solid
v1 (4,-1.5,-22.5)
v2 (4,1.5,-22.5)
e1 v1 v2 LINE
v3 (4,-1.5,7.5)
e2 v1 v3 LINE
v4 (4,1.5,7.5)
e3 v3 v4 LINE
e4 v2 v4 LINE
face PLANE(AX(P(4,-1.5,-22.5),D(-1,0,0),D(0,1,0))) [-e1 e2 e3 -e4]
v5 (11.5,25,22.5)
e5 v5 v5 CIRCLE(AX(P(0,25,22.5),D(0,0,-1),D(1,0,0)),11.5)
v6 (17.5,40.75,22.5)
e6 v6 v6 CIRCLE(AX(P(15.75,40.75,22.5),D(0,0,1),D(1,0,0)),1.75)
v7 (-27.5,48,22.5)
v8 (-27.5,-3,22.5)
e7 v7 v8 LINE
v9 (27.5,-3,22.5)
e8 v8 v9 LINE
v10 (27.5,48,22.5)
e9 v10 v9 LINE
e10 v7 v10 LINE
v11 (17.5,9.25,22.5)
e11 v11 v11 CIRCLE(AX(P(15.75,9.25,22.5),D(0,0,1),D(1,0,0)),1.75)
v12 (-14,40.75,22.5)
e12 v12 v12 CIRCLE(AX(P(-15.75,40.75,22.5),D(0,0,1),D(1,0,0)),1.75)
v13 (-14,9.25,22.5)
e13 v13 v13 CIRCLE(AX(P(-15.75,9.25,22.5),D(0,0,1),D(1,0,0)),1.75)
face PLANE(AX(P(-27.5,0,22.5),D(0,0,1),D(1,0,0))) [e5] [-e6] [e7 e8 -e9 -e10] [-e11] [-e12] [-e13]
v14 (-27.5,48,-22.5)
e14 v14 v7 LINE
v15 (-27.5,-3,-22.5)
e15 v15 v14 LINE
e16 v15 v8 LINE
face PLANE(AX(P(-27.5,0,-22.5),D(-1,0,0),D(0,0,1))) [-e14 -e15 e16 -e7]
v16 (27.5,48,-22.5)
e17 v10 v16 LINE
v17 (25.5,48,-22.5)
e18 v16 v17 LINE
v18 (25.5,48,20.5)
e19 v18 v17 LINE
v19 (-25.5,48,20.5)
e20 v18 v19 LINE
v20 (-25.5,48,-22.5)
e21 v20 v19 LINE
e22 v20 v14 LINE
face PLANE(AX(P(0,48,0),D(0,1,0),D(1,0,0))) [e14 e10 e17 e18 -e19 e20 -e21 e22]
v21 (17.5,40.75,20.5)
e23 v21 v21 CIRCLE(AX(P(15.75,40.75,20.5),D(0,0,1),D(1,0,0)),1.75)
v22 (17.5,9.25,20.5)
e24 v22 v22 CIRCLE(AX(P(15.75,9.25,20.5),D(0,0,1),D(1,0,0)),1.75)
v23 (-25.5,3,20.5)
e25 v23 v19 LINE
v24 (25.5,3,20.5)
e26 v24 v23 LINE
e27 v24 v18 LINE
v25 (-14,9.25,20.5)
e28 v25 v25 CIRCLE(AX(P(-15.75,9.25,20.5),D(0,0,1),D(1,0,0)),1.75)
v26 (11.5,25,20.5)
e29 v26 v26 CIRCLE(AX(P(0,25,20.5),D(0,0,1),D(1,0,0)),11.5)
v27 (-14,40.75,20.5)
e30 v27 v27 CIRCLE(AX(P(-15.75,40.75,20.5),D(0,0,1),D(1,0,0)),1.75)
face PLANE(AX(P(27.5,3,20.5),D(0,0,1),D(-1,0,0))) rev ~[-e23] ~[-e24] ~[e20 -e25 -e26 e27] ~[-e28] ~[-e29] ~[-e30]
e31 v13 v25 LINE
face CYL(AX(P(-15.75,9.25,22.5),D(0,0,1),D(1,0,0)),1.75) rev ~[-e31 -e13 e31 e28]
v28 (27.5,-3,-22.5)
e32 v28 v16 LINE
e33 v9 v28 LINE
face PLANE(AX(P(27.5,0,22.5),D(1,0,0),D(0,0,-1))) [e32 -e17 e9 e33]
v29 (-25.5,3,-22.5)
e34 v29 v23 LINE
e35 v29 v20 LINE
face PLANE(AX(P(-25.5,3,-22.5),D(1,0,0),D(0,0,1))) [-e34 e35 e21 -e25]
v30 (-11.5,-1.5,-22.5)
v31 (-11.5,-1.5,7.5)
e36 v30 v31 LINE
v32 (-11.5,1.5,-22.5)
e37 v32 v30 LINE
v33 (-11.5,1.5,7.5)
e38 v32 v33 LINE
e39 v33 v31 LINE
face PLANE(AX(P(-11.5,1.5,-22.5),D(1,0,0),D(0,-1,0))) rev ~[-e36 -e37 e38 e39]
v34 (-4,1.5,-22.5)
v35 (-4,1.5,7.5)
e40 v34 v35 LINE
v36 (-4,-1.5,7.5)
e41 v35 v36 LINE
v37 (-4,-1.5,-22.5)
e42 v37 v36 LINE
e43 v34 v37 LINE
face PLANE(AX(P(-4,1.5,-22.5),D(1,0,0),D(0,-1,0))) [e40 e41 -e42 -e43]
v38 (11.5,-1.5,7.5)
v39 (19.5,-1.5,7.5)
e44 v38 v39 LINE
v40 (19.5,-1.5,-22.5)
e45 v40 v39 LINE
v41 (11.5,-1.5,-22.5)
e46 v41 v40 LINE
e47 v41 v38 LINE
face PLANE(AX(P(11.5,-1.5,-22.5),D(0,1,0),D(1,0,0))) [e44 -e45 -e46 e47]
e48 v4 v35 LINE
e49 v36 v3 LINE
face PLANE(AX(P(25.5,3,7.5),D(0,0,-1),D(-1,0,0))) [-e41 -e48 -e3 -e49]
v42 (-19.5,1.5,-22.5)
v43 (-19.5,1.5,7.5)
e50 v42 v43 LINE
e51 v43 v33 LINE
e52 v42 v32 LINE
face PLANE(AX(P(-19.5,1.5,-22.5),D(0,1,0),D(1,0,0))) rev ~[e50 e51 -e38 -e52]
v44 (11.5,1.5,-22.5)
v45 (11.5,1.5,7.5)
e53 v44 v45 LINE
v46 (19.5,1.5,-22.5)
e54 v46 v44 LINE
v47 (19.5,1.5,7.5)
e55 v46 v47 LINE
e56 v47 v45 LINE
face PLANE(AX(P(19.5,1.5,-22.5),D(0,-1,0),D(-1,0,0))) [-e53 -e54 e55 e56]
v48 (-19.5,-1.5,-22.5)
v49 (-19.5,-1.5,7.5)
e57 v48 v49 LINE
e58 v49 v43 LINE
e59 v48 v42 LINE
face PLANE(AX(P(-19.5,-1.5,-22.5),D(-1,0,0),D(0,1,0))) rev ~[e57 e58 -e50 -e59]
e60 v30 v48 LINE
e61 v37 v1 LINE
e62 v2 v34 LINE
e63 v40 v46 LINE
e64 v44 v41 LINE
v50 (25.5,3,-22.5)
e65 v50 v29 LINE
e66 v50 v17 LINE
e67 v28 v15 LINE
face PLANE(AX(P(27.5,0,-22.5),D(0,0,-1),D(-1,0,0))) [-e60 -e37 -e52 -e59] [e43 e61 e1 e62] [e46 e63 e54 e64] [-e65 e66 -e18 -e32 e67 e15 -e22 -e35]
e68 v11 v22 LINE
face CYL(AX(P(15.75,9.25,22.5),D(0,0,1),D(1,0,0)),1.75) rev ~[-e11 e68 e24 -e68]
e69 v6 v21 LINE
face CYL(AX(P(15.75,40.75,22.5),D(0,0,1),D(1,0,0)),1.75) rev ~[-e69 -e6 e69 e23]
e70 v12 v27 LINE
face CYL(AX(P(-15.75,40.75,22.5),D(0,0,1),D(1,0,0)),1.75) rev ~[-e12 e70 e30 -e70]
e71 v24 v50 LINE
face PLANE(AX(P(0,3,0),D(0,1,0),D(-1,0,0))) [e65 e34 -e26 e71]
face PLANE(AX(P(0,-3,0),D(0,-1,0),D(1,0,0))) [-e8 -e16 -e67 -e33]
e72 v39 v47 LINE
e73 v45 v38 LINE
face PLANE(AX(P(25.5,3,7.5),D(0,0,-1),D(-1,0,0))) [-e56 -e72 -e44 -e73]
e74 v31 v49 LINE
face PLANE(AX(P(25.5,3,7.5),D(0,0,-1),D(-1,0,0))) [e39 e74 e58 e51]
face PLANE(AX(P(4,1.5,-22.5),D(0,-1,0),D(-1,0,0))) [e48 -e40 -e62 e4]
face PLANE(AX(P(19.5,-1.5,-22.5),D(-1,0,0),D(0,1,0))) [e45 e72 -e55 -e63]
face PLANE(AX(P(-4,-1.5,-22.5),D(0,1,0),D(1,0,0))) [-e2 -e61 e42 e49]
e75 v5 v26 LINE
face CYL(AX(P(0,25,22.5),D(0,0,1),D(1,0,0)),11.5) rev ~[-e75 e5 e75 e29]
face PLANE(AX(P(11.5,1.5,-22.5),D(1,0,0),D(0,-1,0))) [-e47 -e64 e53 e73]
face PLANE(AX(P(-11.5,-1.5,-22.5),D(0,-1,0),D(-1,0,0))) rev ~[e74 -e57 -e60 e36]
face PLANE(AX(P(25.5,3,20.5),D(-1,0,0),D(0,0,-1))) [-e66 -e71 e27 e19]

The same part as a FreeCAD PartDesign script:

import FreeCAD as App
import Part
import Sketcher

V = App.Vector
Q = App.Units.Quantity


def add_polygon(sketch, points):
    """Adds a closed chain of lines whose ends are joined by coincident constraints."""
    first, n = sketch.GeometryCount, len(points)
    for a, b in zip(points, points[1:] + points[:1]):
        sketch.addGeometry(Part.LineSegment(App.Vector(*a, 0), App.Vector(*b, 0)), False)
    for i in range(n):
        sketch.addConstraint(Sketcher.Constraint("Coincident", first + i, 2, first + (i + 1) % n, 1))

doc = App.newDocument("Part")
body = doc.addObject("PartDesign::Body", "Body")

# Sketch on XZ plane
sketch1 = body.newObject("Sketcher::SketchObject", "Sketch")
sketch1.AttachmentSupport = (doc.getObject("XZ_Plane"), [""])
sketch1.MapMode = "FlatFace"
add_polygon(sketch1, [(28, 22), (28, -22), (-28, -22), (-28, 22)])  # lines 0-3
sketch1.addConstraint([
    Sketcher.Constraint("Vertical", 0),
    Sketcher.Constraint("Horizontal", 1),
    Sketcher.Constraint("Vertical", 2),
    Sketcher.Constraint("Horizontal", 3),
    Sketcher.Constraint("Symmetric", 0, 2, 2, 2, -1, 1),
    Sketcher.Constraint("DistanceX", 1, 2, 1, 1, Q("55 mm")),
    Sketcher.Constraint("DistanceY", 0, 2, 0, 1, Q("45 mm")),
])
pad1 = body.newObject("PartDesign::Pad", "Pad")
pad1.Profile = sketch1
pad1.Length = 3
pad1.Reversed = True

# Sketch on XZ plane
sketch2 = body.newObject("Sketcher::SketchObject", "Sketch001")
sketch2.AttachmentSupport = (doc.getObject("XZ_Plane"), [""])
sketch2.MapMode = "FlatFace"
sketch2.AttachmentOffset = App.Placement(V(0, 0, -3), App.Rotation())
add_polygon(sketch2, [(27.5, 20.5), (-27.5, 20.5), (-27.5, 22.5), (27.5, 22.5)])  # lines 0-3
sketch2.addConstraint([
    Sketcher.Constraint("Horizontal", 0),
    Sketcher.Constraint("Vertical", 1),
    Sketcher.Constraint("Horizontal", 2),
    Sketcher.Constraint("Vertical", 3),
    Sketcher.Constraint("DistanceY", 1, 1, 1, 2, Q("2 mm")),
    Sketcher.Constraint("DistanceX", 0, 2, 0, 1, Q("55 mm")),
    Sketcher.Constraint("DistanceX", 0, 2, -1, 1, Q("27.5 mm")),
    Sketcher.Constraint("DistanceY", -1, 1, 0, 2, Q("20.5 mm")),
])
pad2 = body.newObject("PartDesign::Pad", "Pad001")
pad2.Profile = sketch2
pad2.Length = 45
pad2.Reversed = True

# Sketch on XY plane
sketch3 = body.newObject("Sketcher::SketchObject", "Sketch002")
sketch3.AttachmentSupport = (doc.getObject("XY_Plane"), [""])
sketch3.MapMode = "FlatFace"
sketch3.AttachmentOffset = App.Placement(V(0, 0, 22.5), App.Rotation())
sketch3.addGeometry([
    Part.Circle(V(0, 25, 0), V(0, 0, 1), 11.5),  # 0
    Part.Circle(V(15.8, 9.2, 0), V(0, 0, 1), 1.8),  # 1
    Part.Circle(V(-15.8, 9.2, 0), V(0, 0, 1), 1.8),  # 2
    Part.Circle(V(-15.8, 40.8, 0), V(0, 0, 1), 1.8),  # 3
    Part.Circle(V(15.8, 40.8, 0), V(0, 0, 1), 1.8),  # 4
], False)
sketch3.addConstraint([
    Sketcher.Constraint("Equal", 1, 2),
    Sketcher.Constraint("Equal", 2, 3),
    Sketcher.Constraint("Equal", 3, 4),
    Sketcher.Constraint("Symmetric", 1, 3, 2, 3, -2),
    Sketcher.Constraint("Symmetric", 3, 3, 4, 3, -2),
    Sketcher.Constraint("PointOnObject", 0, 3, -2),
    Sketcher.Constraint("Vertical", 2, 3, 3, 3),
    Sketcher.Constraint("Diameter", 0, Q("23 mm")),
    Sketcher.Constraint("Diameter", 1, Q("3.5 mm")),
    Sketcher.Constraint("DistanceX", 2, 3, 1, 3, Q("31.5 mm")),
    Sketcher.Constraint("DistanceY", 2, 3, 3, 3, Q("31.5 mm")),
    Sketcher.Constraint("DistanceY", -1, 1, 0, 3, Q("25 mm")),
    Sketcher.Constraint("DistanceY", -1, 1, 1, 3, Q("9.25 mm")),
])
pocket1 = body.newObject("PartDesign::Pocket", "Pocket")
pocket1.Profile = sketch3
pocket1.Length = 2

# Sketch on XZ plane
sketch4 = body.newObject("Sketcher::SketchObject", "Sketch003")
sketch4.AttachmentSupport = (doc.getObject("XZ_Plane"), [""])
sketch4.MapMode = "FlatFace"
sketch4.AttachmentOffset = App.Placement(V(0, 0, -3), App.Rotation())
add_polygon(sketch4, [(25.5, 20.5), (27.5, 20.5), (27.5, -22.5), (25.5, -22.5)])  # lines 0-3
add_polygon(sketch4, [(-27.5, 20.5), (-25.5, 20.5), (-25.5, -22.5), (-27.5, -22.5)])  # lines 4-7
sketch4.addConstraint([
    Sketcher.Constraint("Horizontal", 0),
    Sketcher.Constraint("Vertical", 1),
    Sketcher.Constraint("Horizontal", 2),
    Sketcher.Constraint("Vertical", 3),
    Sketcher.Constraint("Horizontal", 4),
    Sketcher.Constraint("Vertical", 5),
    Sketcher.Constraint("Horizontal", 6),
    Sketcher.Constraint("Vertical", 7),
    Sketcher.Constraint("Symmetric", 3, 2, 4, 2, -2),
    Sketcher.Constraint("Symmetric", 1, 2, 6, 2, -2),
    Sketcher.Constraint("DistanceX", 0, 1, 0, 2, Q("2 mm")),
    Sketcher.Constraint("DistanceY", 1, 2, 1, 1, Q("43 mm")),
    Sketcher.Constraint("DistanceX", 4, 2, 3, 2, Q("51 mm")),
    Sketcher.Constraint("DistanceY", -1, 1, 0, 2, Q("20.5 mm")),
])
pad3 = body.newObject("PartDesign::Pad", "Pad002")
pad3.Profile = sketch4
pad3.Length = 45
pad3.Reversed = True

# Sketch on XZ plane
sketch5 = body.newObject("Sketcher::SketchObject", "Sketch004")
sketch5.AttachmentSupport = (doc.getObject("XZ_Plane"), [""])
sketch5.MapMode = "FlatFace"
add_polygon(sketch5, [(28, -22), (28, 22), (-28, 22), (-28, -22)])  # lines 0-3
sketch5.addConstraint([
    Sketcher.Constraint("Vertical", 0),
    Sketcher.Constraint("Horizontal", 1),
    Sketcher.Constraint("Vertical", 2),
    Sketcher.Constraint("Horizontal", 3),
    Sketcher.Constraint("Symmetric", 0, 2, 2, 2, -1, 1),
    Sketcher.Constraint("DistanceX", 1, 2, 1, 1, Q("55 mm")),
    Sketcher.Constraint("DistanceY", 0, 1, 0, 2, Q("45 mm")),
])
pad4 = body.newObject("PartDesign::Pad", "Pad003")
pad4.Profile = sketch5
pad4.Length = 3

# Sketch on XY plane
sketch6 = body.newObject("Sketcher::SketchObject", "Sketch005")
sketch6.AttachmentSupport = (doc.getObject("XY_Plane"), [""])
sketch6.MapMode = "FlatFace"
sketch6.AttachmentOffset = App.Placement(V(0, 0, -22.5), App.Rotation())
add_polygon(sketch6, [(11.5, 1.5), (19.5, 1.5), (19.5, -1.5), (11.5, -1.5)])  # lines 0-3
add_polygon(sketch6, [(-19.5, -1.5), (-19.5, 1.5), (-11.5, 1.5), (-11.5, -1.5)])  # lines 4-7
add_polygon(sketch6, [(-4, 1.5), (4, 1.5), (4, -1.5), (-4, -1.5)])  # lines 8-11
sketch6.addConstraint([
    Sketcher.Constraint("Horizontal", 0),
    Sketcher.Constraint("Vertical", 1),
    Sketcher.Constraint("Horizontal", 2),
    Sketcher.Constraint("Vertical", 3),
    Sketcher.Constraint("Vertical", 4),
    Sketcher.Constraint("Horizontal", 5),
    Sketcher.Constraint("Vertical", 6),
    Sketcher.Constraint("Horizontal", 7),
    Sketcher.Constraint("Horizontal", 8),
    Sketcher.Constraint("Vertical", 9),
    Sketcher.Constraint("Horizontal", 10),
    Sketcher.Constraint("Vertical", 11),
    Sketcher.Constraint("Symmetric", 1, 2, 4, 2, -1, 1),
    Sketcher.Constraint("Symmetric", 3, 2, 6, 2, -1, 1),
    Sketcher.Constraint("Symmetric", 8, 2, 10, 2, -1, 1),
    Sketcher.Constraint("Horizontal", 3, 2, 4, 2),
    Sketcher.Constraint("Horizontal", 5, 2, 8, 2),
    Sketcher.Constraint("Equal", 7, 8),
    Sketcher.Constraint("DistanceX", 0, 1, 0, 2, Q("8 mm")),
    Sketcher.Constraint("DistanceY", 1, 2, 1, 1, Q("3 mm")),
    Sketcher.Constraint("DistanceX", 8, 2, 3, 2, Q("7.5 mm")),
])
pocket2 = body.newObject("PartDesign::Pocket", "Pocket001")
pocket2.Profile = sketch6
pocket2.Length = 30
pocket2.Reversed = True

doc.recompute()
